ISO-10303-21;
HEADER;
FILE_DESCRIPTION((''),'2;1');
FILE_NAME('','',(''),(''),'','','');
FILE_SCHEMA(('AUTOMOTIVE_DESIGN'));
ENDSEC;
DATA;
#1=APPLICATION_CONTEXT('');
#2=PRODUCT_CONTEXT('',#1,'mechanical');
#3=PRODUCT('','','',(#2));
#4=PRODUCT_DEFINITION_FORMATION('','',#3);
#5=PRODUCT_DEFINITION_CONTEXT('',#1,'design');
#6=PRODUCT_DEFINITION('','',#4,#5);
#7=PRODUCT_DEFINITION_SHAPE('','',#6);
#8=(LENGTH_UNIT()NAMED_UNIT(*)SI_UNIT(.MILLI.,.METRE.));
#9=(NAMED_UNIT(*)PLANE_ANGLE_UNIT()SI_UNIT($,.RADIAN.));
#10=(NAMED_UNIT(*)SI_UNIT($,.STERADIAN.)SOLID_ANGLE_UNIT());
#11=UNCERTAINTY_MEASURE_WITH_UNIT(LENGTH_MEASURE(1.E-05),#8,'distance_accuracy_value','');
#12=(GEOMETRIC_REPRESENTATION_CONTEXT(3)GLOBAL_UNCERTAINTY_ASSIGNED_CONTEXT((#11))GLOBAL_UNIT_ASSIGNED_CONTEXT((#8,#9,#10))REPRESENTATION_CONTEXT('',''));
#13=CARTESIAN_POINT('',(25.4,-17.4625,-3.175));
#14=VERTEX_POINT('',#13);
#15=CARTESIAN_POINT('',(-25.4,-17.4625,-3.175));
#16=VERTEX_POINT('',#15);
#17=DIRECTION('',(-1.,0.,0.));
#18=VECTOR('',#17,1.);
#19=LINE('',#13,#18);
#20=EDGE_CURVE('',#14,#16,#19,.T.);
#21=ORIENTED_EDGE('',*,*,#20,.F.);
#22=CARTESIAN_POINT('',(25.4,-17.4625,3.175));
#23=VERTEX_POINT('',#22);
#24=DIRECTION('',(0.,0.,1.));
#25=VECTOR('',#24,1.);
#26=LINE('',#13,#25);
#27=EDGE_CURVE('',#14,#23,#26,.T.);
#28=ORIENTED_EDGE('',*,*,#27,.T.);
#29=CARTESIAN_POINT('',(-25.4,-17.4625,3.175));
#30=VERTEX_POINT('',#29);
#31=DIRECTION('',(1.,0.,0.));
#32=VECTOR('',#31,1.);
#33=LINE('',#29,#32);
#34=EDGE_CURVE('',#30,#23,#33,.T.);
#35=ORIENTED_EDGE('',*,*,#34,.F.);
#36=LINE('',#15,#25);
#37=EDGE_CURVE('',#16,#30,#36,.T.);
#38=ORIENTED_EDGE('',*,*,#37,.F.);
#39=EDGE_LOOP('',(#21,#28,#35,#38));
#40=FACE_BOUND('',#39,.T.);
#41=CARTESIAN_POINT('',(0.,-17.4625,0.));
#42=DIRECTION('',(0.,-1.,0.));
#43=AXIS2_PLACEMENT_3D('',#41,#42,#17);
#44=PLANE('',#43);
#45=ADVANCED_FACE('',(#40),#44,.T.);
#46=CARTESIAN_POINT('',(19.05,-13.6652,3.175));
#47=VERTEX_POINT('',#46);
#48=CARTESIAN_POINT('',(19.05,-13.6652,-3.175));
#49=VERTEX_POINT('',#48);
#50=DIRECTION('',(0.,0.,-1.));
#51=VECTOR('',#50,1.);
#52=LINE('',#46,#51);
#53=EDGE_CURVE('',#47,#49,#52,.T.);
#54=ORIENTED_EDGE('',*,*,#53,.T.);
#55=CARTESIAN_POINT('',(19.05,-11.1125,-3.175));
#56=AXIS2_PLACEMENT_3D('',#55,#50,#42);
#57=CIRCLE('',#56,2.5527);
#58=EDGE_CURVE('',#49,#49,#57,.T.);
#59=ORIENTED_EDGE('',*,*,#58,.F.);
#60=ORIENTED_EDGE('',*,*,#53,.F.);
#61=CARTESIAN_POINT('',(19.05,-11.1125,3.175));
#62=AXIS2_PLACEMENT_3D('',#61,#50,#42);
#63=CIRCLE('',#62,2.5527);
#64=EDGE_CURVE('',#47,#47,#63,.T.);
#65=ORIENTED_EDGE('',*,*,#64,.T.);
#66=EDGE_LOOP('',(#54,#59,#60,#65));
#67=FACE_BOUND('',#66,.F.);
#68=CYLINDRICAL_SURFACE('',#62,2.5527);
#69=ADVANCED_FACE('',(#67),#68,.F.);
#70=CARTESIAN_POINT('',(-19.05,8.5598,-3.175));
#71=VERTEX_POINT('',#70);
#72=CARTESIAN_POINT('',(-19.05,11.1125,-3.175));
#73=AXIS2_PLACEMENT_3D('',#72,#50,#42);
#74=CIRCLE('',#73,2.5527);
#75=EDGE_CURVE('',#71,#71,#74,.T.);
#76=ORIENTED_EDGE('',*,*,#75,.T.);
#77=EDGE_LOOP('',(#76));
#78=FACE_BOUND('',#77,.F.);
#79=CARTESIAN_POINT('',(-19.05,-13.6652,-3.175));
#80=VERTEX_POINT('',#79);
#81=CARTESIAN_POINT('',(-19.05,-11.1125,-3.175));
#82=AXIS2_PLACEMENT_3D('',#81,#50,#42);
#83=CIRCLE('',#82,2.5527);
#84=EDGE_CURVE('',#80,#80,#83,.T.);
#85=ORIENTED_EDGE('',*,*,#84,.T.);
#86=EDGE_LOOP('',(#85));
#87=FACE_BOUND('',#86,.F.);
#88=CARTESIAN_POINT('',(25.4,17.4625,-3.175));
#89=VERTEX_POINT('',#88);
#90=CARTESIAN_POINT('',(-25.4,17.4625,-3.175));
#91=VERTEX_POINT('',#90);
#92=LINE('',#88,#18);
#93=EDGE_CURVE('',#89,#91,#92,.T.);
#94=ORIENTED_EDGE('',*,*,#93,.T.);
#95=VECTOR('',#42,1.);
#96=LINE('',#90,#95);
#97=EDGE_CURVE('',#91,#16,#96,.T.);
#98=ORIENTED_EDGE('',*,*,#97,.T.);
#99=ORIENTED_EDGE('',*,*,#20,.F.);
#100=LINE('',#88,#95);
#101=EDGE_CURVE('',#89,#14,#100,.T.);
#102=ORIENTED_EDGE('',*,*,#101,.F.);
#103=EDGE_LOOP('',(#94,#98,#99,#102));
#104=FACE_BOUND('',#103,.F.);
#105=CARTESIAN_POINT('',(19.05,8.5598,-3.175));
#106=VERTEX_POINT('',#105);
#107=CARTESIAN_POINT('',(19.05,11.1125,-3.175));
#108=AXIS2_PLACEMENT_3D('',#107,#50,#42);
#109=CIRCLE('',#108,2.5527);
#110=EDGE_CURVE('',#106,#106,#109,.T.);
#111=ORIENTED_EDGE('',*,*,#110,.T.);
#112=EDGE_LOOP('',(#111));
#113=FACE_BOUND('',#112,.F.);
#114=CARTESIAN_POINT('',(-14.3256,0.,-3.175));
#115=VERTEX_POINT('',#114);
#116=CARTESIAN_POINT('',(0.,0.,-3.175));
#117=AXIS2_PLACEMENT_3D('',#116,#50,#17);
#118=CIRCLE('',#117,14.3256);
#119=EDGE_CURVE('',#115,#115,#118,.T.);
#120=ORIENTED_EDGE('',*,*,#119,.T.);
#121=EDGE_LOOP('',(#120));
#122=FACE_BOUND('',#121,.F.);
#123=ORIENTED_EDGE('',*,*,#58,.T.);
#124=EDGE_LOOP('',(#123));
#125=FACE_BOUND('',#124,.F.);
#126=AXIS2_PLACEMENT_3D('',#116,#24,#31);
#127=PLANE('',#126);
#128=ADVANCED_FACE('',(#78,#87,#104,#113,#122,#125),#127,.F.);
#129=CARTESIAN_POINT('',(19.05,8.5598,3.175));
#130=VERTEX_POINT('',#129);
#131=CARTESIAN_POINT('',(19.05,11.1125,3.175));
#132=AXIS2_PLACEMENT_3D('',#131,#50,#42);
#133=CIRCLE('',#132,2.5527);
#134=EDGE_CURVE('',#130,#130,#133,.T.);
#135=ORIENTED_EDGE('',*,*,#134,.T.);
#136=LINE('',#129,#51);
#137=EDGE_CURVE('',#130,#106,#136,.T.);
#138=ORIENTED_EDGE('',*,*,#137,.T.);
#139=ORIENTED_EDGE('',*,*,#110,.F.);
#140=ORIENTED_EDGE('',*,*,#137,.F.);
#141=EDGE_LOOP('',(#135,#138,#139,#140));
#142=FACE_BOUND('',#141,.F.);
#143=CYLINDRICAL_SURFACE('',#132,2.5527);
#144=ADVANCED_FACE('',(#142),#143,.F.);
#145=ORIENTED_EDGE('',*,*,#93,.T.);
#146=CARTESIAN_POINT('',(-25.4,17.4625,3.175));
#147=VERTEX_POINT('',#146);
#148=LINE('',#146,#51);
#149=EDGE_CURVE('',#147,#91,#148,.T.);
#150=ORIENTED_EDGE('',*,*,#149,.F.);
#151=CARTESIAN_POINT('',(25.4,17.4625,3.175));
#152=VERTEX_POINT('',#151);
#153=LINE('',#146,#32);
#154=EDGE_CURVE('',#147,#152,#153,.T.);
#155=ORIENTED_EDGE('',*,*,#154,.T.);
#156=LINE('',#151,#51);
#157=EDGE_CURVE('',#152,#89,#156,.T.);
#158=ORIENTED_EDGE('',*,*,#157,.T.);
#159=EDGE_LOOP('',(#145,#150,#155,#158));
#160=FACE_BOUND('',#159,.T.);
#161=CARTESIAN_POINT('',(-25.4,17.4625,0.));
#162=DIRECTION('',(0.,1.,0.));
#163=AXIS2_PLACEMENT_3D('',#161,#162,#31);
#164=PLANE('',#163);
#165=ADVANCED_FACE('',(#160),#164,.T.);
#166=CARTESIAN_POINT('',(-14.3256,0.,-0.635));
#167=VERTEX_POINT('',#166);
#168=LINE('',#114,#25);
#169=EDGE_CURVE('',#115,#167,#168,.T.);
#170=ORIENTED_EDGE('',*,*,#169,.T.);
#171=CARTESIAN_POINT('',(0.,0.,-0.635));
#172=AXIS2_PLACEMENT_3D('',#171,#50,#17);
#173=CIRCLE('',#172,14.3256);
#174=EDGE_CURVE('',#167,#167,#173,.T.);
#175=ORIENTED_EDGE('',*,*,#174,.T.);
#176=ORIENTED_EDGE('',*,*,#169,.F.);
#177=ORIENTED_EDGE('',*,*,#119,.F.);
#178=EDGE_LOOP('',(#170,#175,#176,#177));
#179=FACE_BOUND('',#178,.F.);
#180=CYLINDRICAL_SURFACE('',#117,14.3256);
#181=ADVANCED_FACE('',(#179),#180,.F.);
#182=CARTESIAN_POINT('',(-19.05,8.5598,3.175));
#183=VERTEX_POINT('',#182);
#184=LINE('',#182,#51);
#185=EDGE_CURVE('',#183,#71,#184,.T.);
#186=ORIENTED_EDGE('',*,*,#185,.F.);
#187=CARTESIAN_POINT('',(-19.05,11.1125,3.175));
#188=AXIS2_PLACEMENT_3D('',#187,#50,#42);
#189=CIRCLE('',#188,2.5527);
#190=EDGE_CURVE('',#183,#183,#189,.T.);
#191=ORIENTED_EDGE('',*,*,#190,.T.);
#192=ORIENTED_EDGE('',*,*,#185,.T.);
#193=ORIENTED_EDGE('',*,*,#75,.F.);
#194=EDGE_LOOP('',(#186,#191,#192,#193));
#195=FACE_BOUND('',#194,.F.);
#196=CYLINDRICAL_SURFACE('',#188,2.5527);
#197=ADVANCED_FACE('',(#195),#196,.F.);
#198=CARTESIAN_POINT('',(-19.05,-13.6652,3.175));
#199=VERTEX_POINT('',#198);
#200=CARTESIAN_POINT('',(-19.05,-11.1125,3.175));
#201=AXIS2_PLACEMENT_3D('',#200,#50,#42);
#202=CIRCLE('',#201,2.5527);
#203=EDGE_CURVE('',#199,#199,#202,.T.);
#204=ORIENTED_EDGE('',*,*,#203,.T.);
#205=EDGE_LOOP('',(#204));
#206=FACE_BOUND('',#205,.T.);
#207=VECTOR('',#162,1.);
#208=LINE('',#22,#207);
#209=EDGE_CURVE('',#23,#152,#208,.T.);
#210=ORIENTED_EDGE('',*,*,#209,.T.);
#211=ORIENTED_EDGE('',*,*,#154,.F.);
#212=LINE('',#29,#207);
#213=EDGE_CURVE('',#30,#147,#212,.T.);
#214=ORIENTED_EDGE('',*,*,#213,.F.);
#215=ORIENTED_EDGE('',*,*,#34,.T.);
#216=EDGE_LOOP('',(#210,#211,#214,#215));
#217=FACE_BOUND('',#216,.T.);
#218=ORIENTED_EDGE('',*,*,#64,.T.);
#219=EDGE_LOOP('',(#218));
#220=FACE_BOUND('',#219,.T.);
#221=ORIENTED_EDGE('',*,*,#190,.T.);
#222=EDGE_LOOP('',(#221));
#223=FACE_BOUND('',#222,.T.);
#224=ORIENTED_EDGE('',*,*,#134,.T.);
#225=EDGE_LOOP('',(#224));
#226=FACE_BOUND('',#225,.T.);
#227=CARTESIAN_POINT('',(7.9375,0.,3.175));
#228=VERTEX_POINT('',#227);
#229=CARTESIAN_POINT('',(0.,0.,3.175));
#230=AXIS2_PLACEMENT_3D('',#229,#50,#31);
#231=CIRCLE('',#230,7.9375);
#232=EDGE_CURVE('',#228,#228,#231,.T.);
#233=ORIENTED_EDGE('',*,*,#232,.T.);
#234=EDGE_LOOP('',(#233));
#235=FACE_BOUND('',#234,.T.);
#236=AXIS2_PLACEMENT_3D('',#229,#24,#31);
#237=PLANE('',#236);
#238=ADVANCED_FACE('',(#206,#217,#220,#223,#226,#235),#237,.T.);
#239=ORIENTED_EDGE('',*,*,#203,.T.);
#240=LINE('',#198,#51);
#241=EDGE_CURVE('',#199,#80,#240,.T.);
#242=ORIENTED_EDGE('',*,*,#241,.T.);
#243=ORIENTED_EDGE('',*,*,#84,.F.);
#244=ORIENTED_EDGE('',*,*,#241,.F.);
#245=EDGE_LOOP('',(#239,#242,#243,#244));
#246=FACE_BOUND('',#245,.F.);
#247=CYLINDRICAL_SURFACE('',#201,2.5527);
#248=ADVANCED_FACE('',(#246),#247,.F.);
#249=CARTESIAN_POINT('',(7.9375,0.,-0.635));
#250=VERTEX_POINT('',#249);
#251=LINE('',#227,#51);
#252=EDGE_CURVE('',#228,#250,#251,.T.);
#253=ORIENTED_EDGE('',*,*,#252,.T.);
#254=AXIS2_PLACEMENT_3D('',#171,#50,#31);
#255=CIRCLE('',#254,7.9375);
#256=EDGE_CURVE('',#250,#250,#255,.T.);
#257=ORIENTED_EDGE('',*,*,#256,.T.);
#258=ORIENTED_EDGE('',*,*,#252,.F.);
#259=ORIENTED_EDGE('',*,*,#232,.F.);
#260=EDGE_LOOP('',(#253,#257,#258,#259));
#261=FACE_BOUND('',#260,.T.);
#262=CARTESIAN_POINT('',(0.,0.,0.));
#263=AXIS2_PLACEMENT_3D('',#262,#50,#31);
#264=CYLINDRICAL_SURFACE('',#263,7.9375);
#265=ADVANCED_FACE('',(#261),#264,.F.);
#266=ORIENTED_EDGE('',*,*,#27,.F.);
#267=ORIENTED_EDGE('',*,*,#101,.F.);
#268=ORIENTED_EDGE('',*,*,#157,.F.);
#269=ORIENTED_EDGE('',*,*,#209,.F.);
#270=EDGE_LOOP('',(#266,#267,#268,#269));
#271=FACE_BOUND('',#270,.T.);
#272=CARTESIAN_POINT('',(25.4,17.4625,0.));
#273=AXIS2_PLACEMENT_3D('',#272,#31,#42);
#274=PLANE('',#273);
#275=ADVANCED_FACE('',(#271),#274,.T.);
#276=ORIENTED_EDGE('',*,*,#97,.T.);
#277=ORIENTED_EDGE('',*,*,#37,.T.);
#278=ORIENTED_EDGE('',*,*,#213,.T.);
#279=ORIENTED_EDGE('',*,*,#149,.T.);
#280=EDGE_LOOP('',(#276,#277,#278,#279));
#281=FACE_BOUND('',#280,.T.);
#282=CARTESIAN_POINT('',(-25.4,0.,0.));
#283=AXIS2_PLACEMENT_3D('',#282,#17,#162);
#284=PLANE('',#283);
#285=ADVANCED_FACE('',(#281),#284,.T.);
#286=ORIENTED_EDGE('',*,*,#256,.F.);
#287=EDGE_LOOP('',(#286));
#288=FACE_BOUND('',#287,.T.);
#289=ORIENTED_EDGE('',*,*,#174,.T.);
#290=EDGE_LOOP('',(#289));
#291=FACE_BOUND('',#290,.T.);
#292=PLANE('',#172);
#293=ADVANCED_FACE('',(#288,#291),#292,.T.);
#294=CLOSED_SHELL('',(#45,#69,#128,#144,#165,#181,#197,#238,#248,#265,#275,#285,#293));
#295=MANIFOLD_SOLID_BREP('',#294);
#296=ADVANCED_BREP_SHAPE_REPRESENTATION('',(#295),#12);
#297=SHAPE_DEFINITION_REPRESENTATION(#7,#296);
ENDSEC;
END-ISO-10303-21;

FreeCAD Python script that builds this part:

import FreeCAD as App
import Part
import Sketcher
Q = App.Units.Quantity

doc = App.newDocument("Part")
body = doc.addObject("PartDesign::Body", "Body")

sketch1 = doc.addObject("Sketcher::SketchObject", "Sketch")
body.addObject(sketch1)
sketch1.AttachmentSupport = (doc.XY_Plane, [""])
sketch1.MapMode = "FlatFace"
sketch1.addGeometry([
    Part.LineSegment(App.Vector(-25.4, 17.4625, 0), App.Vector(-25.4, -17.4625, 0)),
    Part.LineSegment(App.Vector(-25.4, -17.4625, 0), App.Vector(25.4, -17.4625, 0)),
    Part.LineSegment(App.Vector(25.4, -17.4625, 0), App.Vector(25.4, 17.4625, 0)),
    Part.LineSegment(App.Vector(25.4, 17.4625, 0), App.Vector(-25.4, 17.4625, 0)),
    Part.Circle(App.Vector(0, 0, 0), App.Vector(0, 0, 1), 7.9375),
], False)
sketch1.addConstraint([
    Sketcher.Constraint("Coincident", 0, 2, 1, 1),
    Sketcher.Constraint("Coincident", 1, 2, 2, 1),
    Sketcher.Constraint("Coincident", 2, 2, 3, 1),
    Sketcher.Constraint("Coincident", 3, 2, 0, 1),
    Sketcher.Constraint("Vertical", 0),
    Sketcher.Constraint("Horizontal", 1),
    Sketcher.Constraint("Vertical", 2),
    Sketcher.Constraint("Horizontal", 3),
    Sketcher.Constraint("Coincident", 4, 3, -1, 1),
    Sketcher.Constraint("Symmetric", 0, 2, 2, 2, -1, 1),
    Sketcher.Constraint("DistanceX", 1, 1, 1, 2, Q("2 in")),
    Sketcher.Constraint("Diameter", 4, Q("0.625 in")),
    Sketcher.Constraint("DistanceY", 0, 2, 0, 1, Q("1.375 in")),
])
pad1 = doc.addObject("PartDesign::Pad", "Pad")
body.addObject(pad1)
pad1.Profile = sketch1
pad1.Length = Q("0.25 in")
pad1.Midplane = True

sketch2 = doc.addObject("Sketcher::SketchObject", "Sketch001")
body.addObject(sketch2)
sketch2.AttachmentSupport = (doc.XY_Plane, [""])
sketch2.MapMode = "FlatFace"
sketch2.AttachmentOffset = App.Placement(App.Vector(0, 0, -0.125 * 25.4), App.Rotation())
sketch2.addGeometry([
    Part.Circle(App.Vector(0, 0, 0), App.Vector(0, 0, 1), 14.3256),
    Part.Circle(App.Vector(0, 0, 0), App.Vector(0, 0, 1), 7.9375),
], False)
sketch2.addConstraint([
    Sketcher.Constraint("Coincident", 0, 3, -1, 1),
    Sketcher.Constraint("Coincident", 1, 3, -1, 1),
    Sketcher.Constraint("Diameter", 0, Q("1.128 in")),
    Sketcher.Constraint("Diameter", 1, Q("0.625 in")),
])
pocket1 = doc.addObject("PartDesign::Pocket", "Pocket")
body.addObject(pocket1)
pocket1.Profile = sketch2
pocket1.Length = Q("0.1 in")
pocket1.Reversed = True

sketch3 = doc.addObject("Sketcher::SketchObject", "Sketch002")
body.addObject(sketch3)
sketch3.AttachmentSupport = (doc.XY_Plane, [""])
sketch3.MapMode = "FlatFace"
sketch3.AttachmentOffset = App.Placement(App.Vector(0, 0, 0.125 * 25.4), App.Rotation())
sketch3.addGeometry([
    Part.Circle(App.Vector(-19.05, 11.1125, 0), App.Vector(0, 0, 1), 2.5527),
    Part.Circle(App.Vector(19.05, 11.1125, 0), App.Vector(0, 0, 1), 2.5527),
    Part.Circle(App.Vector(-19.05, -11.1125, 0), App.Vector(0, 0, 1), 2.5527),
    Part.Circle(App.Vector(19.05, -11.1125, 0), App.Vector(0, 0, 1), 2.5527),
], False)
sketch3.addConstraint([
    Sketcher.Constraint("Equal", 0, 1),
    Sketcher.Constraint("Equal", 1, 2),
    Sketcher.Constraint("Equal", 2, 3),
    Sketcher.Constraint("Symmetric", 1, 3, 2, 3, -1, 1),
    Sketcher.Constraint("Symmetric", 0, 3, 3, 3, -1, 1),
    Sketcher.Constraint("Symmetric", 0, 3, 1, 3, -2),
    Sketcher.Constraint("Diameter", 0, Q("0.201 in")),
    Sketcher.Constraint("DistanceX", 0, 3, 1, 3, Q("1.5 in")),
    Sketcher.Constraint("DistanceY", -1, 1, 0, 3, Q("0.4375 in")),
])
doc.recompute()
hole = doc.addObject("PartDesign::Hole", "Hole")
body.addObject(hole)
hole.Profile = sketch3
hole.ThreadType = "None"
hole.Diameter = Q("0.201 in")
hole.DepthType = "ThroughAll"

doc.recompute()
